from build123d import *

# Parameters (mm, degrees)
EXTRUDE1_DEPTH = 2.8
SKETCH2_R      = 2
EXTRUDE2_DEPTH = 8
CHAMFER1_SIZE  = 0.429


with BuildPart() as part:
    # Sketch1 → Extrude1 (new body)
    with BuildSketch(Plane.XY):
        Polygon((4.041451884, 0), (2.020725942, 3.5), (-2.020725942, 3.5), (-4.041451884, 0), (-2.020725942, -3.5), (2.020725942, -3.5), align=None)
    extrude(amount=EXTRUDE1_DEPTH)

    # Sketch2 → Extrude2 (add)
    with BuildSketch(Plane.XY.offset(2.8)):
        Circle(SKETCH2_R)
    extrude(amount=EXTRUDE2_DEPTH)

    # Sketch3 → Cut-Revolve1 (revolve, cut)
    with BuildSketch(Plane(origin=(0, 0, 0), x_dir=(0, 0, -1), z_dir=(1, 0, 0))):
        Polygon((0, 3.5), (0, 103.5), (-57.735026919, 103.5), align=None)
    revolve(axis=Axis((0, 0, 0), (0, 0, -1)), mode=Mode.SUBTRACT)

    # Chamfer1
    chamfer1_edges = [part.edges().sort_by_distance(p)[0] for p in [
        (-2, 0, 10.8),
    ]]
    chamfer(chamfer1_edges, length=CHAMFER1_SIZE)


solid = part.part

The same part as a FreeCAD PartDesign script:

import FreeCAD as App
import Part
import Sketcher
Q = App.Units.Quantity


def edges_at(feature, points):
    """Names of the edges that pass closest to the given points."""
    edges = feature.Shape.Edges
    near = lambda p: min(range(len(edges)), key=lambda i: edges[i].distToShape(Part.Vertex(*p))[0])
    return sorted({f"Edge{near(p) + 1}" for p in points})


def add_polygon(sketch, points):
    """Adds a closed chain of lines whose ends are joined by coincident constraints."""
    first, n = sketch.GeometryCount, len(points)
    for a, b in zip(points, points[1:] + points[:1]):
        sketch.addGeometry(Part.LineSegment(App.Vector(*a, 0), App.Vector(*b, 0)), False)
    for i in range(n):
        sketch.addConstraint(Sketcher.Constraint("Coincident", first + i, 2, first + (i + 1) % n, 1))

doc = App.newDocument("Part")
params = doc.addObject("Spreadsheet::Sheet", "Params")
for row, (alias, value) in enumerate([
    ("pad1_length", "2.8 mm"),
    ("sketch2_diameter", "4 mm"),
    ("pad2_length", "8 mm"),
    ("sketch3_width", "100 mm"),
    ("groove_angle", "360 deg"),
    ("chamfer_size", "0.429 mm"),
], start=1):
    params.set(f"A{row}", alias)
    params.set(f"B{row}", "=" + value)
    params.setAlias(f"B{row}", alias)

body = doc.addObject("PartDesign::Body", "Body")

# Sketch on XY plane
sketch1 = doc.addObject("Sketcher::SketchObject", "Sketch")
body.addObject(sketch1)
sketch1.AttachmentSupport = (doc.XY_Plane, [""])
sketch1.MapMode = "FlatFace"
add_polygon(sketch1, [(4.041452, 0), (2.020726, 3.5), (-2.020726, 3.5), (-4.041452, 0), (-2.020726, -3.5), (2.020726, -3.5)])  # lines 0-5
sketch1.addConstraint([
    Sketcher.Constraint("Horizontal", 1),
    Sketcher.Constraint("Horizontal", 4),
    Sketcher.Constraint("Symmetric", 0, 2, 3, 2, -1, 1),
    Sketcher.Constraint("Symmetric", 2, 2, 5, 2, -1, 1),
    Sketcher.Constraint("PointOnObject", 2, 2, -1),
    Sketcher.Constraint("Parallel", 2, 5),
    Sketcher.Constraint("Vertical", 1, 2, 3, 2),
    Sketcher.Constraint("Angle", 0, Q("120 deg")),
    Sketcher.Constraint("DistanceY", 3, 2, 1, 2, Q("7 mm")),
    Sketcher.Constraint("DistanceX", 1, 2, 1, 1, Q("4.041452 mm")),
])
pad1 = doc.addObject("PartDesign::Pad", "Pad")
body.addObject(pad1)
pad1.Profile = sketch1
pad1.setExpression("Length", "Params.pad1_length")

# Sketch on XY plane
sketch2 = doc.addObject("Sketcher::SketchObject", "Sketch001")
body.addObject(sketch2)
sketch2.AttachmentSupport = (doc.XY_Plane, [""])
sketch2.MapMode = "FlatFace"
sketch2.AttachmentOffset = App.Placement(App.Vector(0, 0, 2.8), App.Rotation())
sketch2.addGeometry(Part.Circle(App.Vector(0, 0, 0), App.Vector(0, 0, 1), 2), False)
sketch2.addConstraint([
    Sketcher.Constraint("Coincident", 0, 3, -1, 1),
    Sketcher.Constraint("Diameter", 0, Q("4 mm")),
])
sketch2.setExpression("Constraints[1]", "Params.sketch2_diameter")
pad2 = doc.addObject("PartDesign::Pad", "Pad001")
body.addObject(pad2)
pad2.Profile = sketch2
pad2.setExpression("Length", "Params.pad2_length")

# Sketch on YZ plane
sketch3 = doc.addObject("Sketcher::SketchObject", "Sketch002")
body.addObject(sketch3)
sketch3.AttachmentSupport = (doc.YZ_Plane, [""])
sketch3.MapMode = "FlatFace"
add_polygon(sketch3, [(3.5, 0), (103.5, 0), (103.5, 57.735027)])  # lines 0-2
sketch3.addConstraint([
    Sketcher.Constraint("Horizontal", 0),
    Sketcher.Constraint("Vertical", 1),
    Sketcher.Constraint("PointOnObject", 0, 2, -1),
    Sketcher.Constraint("DistanceX", 0, 1, 0, 2, Q("100 mm")),
    Sketcher.Constraint("Angle", 2, Q("-150 deg")),
    Sketcher.Constraint("DistanceX", -1, 1, 0, 2, Q("103.5 mm")),
])
sketch3.setExpression("Constraints[6]", "Params.sketch3_width")
groove = doc.addObject("PartDesign::Groove", "Groove")
body.addObject(groove)
groove.Profile = sketch3
groove.ReferenceAxis = (sketch3, ["V_Axis"])
groove.setExpression("Angle", "Params.groove_angle")
doc.recompute()

chamfer = doc.addObject("PartDesign::Chamfer", "Chamfer")
body.addObject(chamfer)
chamfer.Base = (groove, edges_at(groove, [(-2, 0, 10.8)]))
chamfer.setExpression("Size", "Params.chamfer_size")

doc.recompute()
